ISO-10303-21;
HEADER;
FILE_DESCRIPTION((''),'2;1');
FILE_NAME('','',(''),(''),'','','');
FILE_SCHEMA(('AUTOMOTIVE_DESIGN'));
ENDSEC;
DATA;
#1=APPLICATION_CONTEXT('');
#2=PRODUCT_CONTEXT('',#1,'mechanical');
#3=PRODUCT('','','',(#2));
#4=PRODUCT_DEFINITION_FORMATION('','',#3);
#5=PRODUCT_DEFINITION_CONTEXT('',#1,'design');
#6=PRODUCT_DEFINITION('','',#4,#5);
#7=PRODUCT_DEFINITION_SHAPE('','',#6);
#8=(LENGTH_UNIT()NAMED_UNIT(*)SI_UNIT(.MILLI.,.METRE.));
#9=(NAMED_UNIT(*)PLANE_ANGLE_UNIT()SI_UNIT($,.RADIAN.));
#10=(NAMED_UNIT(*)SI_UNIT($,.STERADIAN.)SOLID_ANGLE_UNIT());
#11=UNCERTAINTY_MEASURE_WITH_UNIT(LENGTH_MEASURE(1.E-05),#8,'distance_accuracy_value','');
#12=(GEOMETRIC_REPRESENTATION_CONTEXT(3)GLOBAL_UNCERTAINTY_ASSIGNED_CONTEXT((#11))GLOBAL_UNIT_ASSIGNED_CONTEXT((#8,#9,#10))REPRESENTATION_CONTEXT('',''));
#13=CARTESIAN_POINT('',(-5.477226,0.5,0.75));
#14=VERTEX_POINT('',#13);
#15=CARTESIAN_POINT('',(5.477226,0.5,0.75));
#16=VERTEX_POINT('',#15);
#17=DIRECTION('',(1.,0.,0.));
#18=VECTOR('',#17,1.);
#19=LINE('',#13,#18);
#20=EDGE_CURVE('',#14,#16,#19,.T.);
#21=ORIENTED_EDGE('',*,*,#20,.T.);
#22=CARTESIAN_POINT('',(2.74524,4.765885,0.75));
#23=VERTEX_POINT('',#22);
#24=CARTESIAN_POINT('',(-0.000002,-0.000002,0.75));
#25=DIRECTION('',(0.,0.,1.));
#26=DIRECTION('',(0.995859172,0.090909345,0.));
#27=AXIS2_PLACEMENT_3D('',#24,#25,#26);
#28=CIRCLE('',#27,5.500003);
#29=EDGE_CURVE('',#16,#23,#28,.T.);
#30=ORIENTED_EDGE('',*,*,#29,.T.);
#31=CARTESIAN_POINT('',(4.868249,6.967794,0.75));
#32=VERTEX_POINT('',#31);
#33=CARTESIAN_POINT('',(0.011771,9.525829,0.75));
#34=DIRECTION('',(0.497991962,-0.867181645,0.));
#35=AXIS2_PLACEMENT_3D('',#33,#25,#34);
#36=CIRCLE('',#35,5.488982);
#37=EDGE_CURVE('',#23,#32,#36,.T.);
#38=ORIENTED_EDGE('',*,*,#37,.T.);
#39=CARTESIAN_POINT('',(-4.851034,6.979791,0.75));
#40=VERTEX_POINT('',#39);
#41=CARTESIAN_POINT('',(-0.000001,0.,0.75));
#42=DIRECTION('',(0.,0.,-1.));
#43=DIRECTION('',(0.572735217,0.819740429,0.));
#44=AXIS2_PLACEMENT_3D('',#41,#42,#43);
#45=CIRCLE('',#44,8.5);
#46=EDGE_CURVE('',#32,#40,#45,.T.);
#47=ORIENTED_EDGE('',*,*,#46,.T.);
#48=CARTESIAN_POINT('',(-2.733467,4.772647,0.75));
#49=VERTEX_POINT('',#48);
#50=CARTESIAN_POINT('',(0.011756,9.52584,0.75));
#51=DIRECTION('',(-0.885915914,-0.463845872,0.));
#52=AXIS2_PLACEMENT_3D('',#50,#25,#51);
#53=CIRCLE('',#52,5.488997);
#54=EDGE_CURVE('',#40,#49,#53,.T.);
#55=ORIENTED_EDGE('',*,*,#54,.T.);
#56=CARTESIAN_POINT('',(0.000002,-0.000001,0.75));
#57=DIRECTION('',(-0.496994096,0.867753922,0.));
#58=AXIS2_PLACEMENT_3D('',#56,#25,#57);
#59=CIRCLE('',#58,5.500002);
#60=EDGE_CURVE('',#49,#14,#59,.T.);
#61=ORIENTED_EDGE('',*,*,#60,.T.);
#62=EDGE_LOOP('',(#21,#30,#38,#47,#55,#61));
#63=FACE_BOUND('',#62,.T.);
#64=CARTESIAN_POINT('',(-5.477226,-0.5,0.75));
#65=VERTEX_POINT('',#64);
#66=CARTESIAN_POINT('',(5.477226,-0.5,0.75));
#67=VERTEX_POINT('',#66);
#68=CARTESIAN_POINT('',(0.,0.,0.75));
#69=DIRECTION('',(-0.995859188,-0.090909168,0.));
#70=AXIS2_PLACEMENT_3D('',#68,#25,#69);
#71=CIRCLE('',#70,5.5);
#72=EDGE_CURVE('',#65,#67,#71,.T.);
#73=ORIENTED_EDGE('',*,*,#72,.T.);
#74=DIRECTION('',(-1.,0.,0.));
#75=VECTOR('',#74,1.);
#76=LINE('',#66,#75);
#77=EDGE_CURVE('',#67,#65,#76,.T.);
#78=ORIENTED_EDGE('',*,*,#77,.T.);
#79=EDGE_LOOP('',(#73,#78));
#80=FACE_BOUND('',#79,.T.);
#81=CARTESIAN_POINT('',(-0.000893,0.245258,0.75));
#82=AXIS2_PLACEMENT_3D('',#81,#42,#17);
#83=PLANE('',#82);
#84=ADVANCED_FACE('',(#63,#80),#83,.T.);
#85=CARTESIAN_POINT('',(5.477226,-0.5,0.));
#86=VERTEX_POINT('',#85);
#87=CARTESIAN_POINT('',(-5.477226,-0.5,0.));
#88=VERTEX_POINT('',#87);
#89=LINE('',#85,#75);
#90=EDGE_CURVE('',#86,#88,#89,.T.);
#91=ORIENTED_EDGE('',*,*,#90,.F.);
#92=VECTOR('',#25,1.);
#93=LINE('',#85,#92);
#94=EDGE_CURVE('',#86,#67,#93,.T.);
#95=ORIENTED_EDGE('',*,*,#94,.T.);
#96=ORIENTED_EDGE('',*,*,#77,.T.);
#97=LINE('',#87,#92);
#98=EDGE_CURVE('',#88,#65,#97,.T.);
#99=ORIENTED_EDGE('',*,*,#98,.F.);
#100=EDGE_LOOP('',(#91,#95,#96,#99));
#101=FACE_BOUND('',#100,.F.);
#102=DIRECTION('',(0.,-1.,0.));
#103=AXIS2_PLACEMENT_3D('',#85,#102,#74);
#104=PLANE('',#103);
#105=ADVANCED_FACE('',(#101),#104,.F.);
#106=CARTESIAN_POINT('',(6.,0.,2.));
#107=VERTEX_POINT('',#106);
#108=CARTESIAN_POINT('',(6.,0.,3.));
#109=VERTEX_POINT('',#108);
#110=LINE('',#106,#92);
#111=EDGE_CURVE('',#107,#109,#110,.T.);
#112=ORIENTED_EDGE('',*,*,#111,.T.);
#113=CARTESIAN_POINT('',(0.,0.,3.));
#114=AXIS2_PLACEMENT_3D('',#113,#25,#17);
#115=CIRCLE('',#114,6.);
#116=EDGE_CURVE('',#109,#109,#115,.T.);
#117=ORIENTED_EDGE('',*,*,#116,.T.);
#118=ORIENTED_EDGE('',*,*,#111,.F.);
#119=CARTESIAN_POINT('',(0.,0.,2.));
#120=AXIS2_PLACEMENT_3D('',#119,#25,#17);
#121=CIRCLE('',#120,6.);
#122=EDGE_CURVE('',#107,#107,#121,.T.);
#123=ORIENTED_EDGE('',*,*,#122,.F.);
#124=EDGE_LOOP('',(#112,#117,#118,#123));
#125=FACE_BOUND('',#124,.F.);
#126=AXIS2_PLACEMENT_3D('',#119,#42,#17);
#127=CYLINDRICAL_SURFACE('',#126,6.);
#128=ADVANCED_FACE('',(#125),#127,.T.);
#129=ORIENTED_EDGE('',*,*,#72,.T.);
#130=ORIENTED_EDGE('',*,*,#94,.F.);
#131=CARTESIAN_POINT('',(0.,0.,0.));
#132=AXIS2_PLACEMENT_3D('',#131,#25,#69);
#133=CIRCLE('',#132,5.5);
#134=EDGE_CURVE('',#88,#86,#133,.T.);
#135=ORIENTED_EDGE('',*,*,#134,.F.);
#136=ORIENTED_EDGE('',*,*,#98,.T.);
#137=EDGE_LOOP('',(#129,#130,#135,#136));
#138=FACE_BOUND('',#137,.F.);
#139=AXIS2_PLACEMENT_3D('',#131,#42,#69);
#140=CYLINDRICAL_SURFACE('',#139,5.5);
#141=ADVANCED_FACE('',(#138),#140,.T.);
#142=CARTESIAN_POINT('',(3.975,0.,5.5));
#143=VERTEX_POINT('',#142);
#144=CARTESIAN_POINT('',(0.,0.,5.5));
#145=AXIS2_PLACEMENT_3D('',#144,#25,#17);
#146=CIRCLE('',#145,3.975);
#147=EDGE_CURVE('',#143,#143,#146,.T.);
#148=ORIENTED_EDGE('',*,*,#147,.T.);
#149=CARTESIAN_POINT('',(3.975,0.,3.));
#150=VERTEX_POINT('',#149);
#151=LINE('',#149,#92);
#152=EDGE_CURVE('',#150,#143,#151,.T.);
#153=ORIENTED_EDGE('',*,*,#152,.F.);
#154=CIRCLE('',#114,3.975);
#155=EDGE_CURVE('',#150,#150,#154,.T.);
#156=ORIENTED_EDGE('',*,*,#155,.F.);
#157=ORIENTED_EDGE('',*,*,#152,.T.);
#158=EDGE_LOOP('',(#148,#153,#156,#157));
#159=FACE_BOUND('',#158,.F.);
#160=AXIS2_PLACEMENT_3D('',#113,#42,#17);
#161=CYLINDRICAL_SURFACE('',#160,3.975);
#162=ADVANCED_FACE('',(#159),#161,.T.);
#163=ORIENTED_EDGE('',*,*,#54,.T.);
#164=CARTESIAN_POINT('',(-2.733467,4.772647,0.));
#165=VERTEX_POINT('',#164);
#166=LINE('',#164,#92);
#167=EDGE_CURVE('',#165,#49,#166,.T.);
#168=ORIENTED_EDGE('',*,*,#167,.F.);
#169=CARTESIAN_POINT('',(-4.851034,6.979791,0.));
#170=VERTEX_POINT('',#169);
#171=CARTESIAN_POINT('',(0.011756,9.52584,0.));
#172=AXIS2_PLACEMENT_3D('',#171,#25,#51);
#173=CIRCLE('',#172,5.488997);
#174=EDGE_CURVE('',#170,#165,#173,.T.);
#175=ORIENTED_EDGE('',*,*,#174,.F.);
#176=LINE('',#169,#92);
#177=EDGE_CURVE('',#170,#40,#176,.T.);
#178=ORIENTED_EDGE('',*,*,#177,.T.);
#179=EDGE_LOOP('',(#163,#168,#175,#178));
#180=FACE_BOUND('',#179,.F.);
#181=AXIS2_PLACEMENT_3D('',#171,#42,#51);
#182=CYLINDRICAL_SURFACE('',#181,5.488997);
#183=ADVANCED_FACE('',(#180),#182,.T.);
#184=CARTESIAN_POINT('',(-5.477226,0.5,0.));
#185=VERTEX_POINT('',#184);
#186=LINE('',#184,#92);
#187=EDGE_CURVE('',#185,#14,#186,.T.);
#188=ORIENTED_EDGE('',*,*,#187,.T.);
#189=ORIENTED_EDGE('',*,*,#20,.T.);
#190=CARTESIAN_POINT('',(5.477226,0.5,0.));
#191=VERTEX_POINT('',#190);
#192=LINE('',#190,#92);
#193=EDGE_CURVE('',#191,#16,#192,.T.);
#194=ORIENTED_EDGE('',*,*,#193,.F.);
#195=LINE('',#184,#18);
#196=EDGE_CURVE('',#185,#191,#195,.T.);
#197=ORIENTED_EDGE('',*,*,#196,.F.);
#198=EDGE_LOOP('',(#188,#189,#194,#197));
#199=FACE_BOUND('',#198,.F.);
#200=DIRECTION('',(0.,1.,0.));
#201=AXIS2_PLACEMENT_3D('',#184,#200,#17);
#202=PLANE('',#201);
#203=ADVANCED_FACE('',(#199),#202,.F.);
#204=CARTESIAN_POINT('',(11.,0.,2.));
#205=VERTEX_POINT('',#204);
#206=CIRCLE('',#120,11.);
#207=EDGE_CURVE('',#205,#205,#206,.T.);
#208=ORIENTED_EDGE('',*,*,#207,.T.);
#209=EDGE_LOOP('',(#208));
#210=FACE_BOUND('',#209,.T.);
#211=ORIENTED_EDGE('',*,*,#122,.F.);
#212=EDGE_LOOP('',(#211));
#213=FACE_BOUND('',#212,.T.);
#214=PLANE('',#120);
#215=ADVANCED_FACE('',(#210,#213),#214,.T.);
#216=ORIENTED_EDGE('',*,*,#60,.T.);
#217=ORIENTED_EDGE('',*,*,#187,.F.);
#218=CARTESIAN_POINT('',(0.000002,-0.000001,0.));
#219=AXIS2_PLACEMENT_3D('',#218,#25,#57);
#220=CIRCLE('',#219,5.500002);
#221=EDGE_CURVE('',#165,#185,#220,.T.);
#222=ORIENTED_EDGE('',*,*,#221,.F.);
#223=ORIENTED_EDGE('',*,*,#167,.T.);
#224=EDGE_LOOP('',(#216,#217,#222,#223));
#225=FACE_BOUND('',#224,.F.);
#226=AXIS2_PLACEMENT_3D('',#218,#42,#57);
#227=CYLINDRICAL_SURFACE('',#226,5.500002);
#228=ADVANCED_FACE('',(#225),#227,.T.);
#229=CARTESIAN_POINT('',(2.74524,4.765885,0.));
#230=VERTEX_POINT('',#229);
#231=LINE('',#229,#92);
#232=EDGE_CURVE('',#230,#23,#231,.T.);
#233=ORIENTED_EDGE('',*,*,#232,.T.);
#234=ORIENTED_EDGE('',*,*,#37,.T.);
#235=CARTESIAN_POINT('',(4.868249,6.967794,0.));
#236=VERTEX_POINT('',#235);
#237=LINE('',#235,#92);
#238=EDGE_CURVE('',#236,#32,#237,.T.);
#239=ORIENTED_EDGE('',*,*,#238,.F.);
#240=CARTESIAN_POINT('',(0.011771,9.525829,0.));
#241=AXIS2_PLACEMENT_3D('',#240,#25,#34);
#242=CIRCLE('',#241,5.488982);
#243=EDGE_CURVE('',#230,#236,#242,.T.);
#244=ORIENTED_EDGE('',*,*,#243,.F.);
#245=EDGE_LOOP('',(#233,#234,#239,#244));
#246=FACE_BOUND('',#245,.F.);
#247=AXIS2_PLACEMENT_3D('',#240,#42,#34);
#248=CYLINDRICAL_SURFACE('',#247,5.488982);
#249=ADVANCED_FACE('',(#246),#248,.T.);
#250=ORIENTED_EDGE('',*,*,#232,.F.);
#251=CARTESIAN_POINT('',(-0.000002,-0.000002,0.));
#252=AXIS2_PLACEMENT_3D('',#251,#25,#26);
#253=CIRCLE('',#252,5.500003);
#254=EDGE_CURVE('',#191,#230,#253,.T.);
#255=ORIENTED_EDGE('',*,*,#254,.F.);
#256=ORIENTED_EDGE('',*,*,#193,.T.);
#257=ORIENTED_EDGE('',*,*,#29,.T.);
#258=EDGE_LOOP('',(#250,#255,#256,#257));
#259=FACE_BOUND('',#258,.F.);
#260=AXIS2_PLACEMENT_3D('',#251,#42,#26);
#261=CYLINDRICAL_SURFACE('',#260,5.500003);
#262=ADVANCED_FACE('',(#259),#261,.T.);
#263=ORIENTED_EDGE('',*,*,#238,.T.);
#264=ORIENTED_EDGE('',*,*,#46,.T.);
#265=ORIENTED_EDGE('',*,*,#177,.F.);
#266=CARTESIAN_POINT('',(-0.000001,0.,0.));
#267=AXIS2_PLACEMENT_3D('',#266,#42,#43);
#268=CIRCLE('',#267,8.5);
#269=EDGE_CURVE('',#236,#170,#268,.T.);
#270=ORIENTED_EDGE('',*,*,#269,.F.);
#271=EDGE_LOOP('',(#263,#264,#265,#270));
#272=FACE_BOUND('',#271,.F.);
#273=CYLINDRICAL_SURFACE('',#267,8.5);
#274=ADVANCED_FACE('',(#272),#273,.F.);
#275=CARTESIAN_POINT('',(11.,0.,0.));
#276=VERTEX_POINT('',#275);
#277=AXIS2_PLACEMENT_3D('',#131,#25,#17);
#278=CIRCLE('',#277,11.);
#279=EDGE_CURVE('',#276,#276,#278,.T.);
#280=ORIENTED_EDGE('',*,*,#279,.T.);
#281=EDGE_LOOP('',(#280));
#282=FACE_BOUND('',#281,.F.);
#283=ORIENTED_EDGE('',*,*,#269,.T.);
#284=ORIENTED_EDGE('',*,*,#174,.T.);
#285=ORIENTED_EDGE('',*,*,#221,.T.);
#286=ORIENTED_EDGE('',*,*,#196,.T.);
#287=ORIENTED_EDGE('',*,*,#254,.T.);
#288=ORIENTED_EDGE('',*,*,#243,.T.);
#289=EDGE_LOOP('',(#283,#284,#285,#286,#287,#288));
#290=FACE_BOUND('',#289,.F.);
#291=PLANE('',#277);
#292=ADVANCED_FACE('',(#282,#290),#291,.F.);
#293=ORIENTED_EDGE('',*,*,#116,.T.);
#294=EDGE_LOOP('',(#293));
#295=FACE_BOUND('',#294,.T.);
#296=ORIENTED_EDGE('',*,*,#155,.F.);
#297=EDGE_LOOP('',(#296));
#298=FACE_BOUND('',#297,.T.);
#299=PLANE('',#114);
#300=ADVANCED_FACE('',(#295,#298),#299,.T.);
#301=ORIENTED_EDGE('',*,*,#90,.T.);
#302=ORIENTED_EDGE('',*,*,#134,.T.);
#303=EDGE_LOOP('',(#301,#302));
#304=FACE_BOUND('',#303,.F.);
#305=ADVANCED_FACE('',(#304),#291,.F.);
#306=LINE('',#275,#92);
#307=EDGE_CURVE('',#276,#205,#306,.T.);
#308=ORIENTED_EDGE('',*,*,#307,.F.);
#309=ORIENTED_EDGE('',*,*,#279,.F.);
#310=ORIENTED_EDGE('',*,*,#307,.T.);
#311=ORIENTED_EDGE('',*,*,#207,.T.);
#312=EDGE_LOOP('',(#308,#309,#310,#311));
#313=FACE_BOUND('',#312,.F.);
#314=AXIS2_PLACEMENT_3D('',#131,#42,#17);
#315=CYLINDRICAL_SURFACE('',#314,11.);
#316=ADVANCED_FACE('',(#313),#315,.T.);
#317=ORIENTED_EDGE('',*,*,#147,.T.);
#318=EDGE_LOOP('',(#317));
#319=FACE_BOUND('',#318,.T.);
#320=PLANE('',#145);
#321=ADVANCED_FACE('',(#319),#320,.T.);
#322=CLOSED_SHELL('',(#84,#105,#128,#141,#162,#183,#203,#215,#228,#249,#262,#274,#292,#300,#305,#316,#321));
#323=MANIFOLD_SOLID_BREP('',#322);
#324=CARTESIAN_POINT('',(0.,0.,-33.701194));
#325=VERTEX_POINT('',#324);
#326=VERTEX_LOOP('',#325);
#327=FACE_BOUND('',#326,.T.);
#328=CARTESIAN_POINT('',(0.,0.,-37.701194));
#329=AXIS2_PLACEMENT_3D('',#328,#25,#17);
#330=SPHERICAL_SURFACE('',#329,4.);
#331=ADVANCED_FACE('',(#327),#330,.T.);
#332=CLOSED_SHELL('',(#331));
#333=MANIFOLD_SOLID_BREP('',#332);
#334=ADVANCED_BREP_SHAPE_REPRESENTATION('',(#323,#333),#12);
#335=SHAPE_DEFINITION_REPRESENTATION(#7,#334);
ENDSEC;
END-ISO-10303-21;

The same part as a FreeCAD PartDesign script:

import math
import FreeCAD as App
import Part
import Sketcher

V = App.Vector
Q = App.Units.Quantity

doc = App.newDocument("Part")
body = doc.addObject("PartDesign::Body", "Body")

# Sketch on XY plane
sketch1 = body.newObject("Sketcher::SketchObject", "Sketch")
sketch1.AttachmentSupport = (doc.getObject("XY_Plane"), [""])
sketch1.MapMode = "FlatFace"
sketch1.addGeometry(Part.Circle(V(0, 0, 0), V(0, 0, 1), 11), False)
sketch1.addConstraint([
    Sketcher.Constraint("Coincident", 0, 3, -1, 1),
    Sketcher.Constraint("Diameter", 0, Q("22 mm")),
])
pad1 = body.newObject("PartDesign::Pad", "Pad")
pad1.Profile = sketch1
pad1.Length = 2

# Sketch on XY plane
sketch2 = body.newObject("Sketcher::SketchObject", "Sketch001")
sketch2.AttachmentSupport = (doc.getObject("XY_Plane"), [""])
sketch2.MapMode = "FlatFace"
sketch2.AttachmentOffset = App.Placement(V(0, 0, 2), App.Rotation())
sketch2.addGeometry(Part.Circle(V(0, 0, 0), V(0, 0, 1), 6), False)
sketch2.addConstraint([
    Sketcher.Constraint("Coincident", 0, 3, -1, 1),
    Sketcher.Constraint("Diameter", 0, Q("12 mm")),
])
pad2 = body.newObject("PartDesign::Pad", "Pad001")
pad2.Profile = sketch2
pad2.Length = 1

# Sketch on XY plane
sketch3 = body.newObject("Sketcher::SketchObject", "Sketch002")
sketch3.AttachmentSupport = (doc.getObject("XY_Plane"), [""])
sketch3.MapMode = "FlatFace"
sketch3.AttachmentOffset = App.Placement(V(0, 0, 3), App.Rotation())
sketch3.addGeometry(Part.Circle(V(0, 0, 0), V(0, 0, 1), 3.975), False)
sketch3.addConstraint([
    Sketcher.Constraint("Coincident", 0, 3, -1, 1),
    Sketcher.Constraint("Diameter", 0, Q("7.95 mm")),
])
pad3 = body.newObject("PartDesign::Pad", "Pad002")
pad3.Profile = sketch3
pad3.Length = 2.5

# Sketch on XY plane
sketch4 = body.newObject("Sketcher::SketchObject", "Sketch003")
sketch4.AttachmentSupport = (doc.getObject("XY_Plane"), [""])
sketch4.MapMode = "FlatFace"
sketch4.addGeometry([
    Part.ArcOfCircle(Part.Circle(V(0.011771, 9.525829, 0), V(0, 0, 1), 5.488982), math.radians(-60.132762), math.radians(-27.776962)),  # 0
    Part.ArcOfCircle(Part.Circle(V(-0.000001, 0, 0), V(0, 0, 1), 8.5), math.radians(124.799736), math.radians(415.058818)),  # 1
    Part.ArcOfCircle(Part.Circle(V(0.011756, 9.52584, 0), V(0, 0, 1), 5.488997), math.radians(-152.364446), math.radians(-120.00873)),  # 2
    Part.ArcOfCircle(Part.Circle(V(0.000002, -0.000001, 0), V(0, 0, 1), 5.500002), math.radians(119.801329), math.radians(174.784079)),  # 3
    Part.LineSegment(V(-5.477226, 0.5, 0), V(5.477226, 0.5, 0)),  # 4
    Part.ArcOfCircle(Part.Circle(V(-0.000002, -0.000002, 0), V(0, 0, 1), 5.500003), math.radians(5.215923), math.radians(60.057232)),  # 5
    Part.LineSegment(V(5.477226, -0.5, 0), V(-5.477226, -0.5, 0)),  # 6
    Part.ArcOfCircle(Part.Circle(V(0, 0, 0), V(0, 0, 1), 5.5), math.radians(-174.784087), math.radians(-5.215913)),  # 7
], False)
sketch4.addConstraint([
    Sketcher.Constraint("Coincident", 0, 2, 1, 2),
    Sketcher.Constraint("Coincident", 1, 1, 2, 1),
    Sketcher.Constraint("Coincident", 2, 2, 3, 1),
    Sketcher.Constraint("Coincident", 3, 2, 4, 1),
    Sketcher.Constraint("Coincident", 4, 2, 5, 1),
    Sketcher.Constraint("Coincident", 5, 2, 0, 1),
    Sketcher.Constraint("Coincident", 6, 1, 7, 2),
    Sketcher.Constraint("Coincident", 7, 1, 6, 2),
    Sketcher.Constraint("Horizontal", 4),
    Sketcher.Constraint("Horizontal", 6),
    Sketcher.Constraint("Coincident", 1, 3, -1, 1),
    Sketcher.Constraint("Coincident", 3, 3, -1, 1),
    Sketcher.Constraint("Coincident", 5, 3, -1, 1),
    Sketcher.Constraint("Coincident", 7, 3, -1, 1),
    Sketcher.Constraint("Equal", 3, 5),
    Sketcher.Constraint("Equal", 3, 7),
    Sketcher.Constraint("Vertical", 4, 2, 6, 1),
    Sketcher.Constraint("Radius", 1, Q("8.5 mm")),
    Sketcher.Constraint("Radius", 7, Q("5.5 mm")),
    Sketcher.Constraint("DistanceY", 6, 1, 4, 2, Q("1 mm")),
    Sketcher.Constraint("Radius", 0, Q("5.488982 mm")),
    Sketcher.Constraint("Radius", 2, Q("5.488997 mm")),
    Sketcher.Constraint("DistanceX", -1, 1, 0, 3, Q("0.011771 mm")),
    Sketcher.Constraint("DistanceY", -1, 1, 0, 3, Q("9.525829 mm")),
    Sketcher.Constraint("DistanceY", -1, 1, 2, 3, Q("9.52584 mm")),
    Sketcher.Constraint("DistanceY", -1, 1, 1, 1, Q("6.979791 mm")),
])
pocket1 = body.newObject("PartDesign::Pocket", "Pocket")
pocket1.Profile = sketch4
pocket1.Length = 0.75
pocket1.Reversed = True
body2 = doc.addObject("PartDesign::Body", "Body001")

# Sketch on XZ plane
sketch5 = body2.newObject("Sketcher::SketchObject", "Sketch004")
sketch5.AttachmentSupport = (doc.getObject("XZ_Plane001"), [""])
sketch5.MapMode = "FlatFace"
sketch5.addGeometry([
    Part.LineSegment(V(0, -33.701194, 0), V(0, -41.701194, 0)),
    Part.ArcOfCircle(Part.Circle(V(0, -37.701194, 0), V(0, 0, 1), 4), math.radians(-90), math.radians(90)),
], False)
sketch5.addConstraint([
    Sketcher.Constraint("Coincident", 0, 1, 1, 2),
    Sketcher.Constraint("Coincident", 1, 1, 0, 2),
    Sketcher.Constraint("Vertical", 0),
    Sketcher.Constraint("PointOnObject", 1, 3, -2),
    Sketcher.Constraint("PointOnObject", 0, 1, -2),
    Sketcher.Constraint("Radius", 1, Q("4 mm")),
    Sketcher.Constraint("DistanceY", 1, 3, -1, 1, Q("37.701194 mm")),
])
revolution = body2.newObject("PartDesign::Revolution", "Revolution")
revolution.Profile = sketch5
revolution.ReferenceAxis = (sketch5, ["V_Axis"])
revolution.Angle = 360

doc.recompute()
